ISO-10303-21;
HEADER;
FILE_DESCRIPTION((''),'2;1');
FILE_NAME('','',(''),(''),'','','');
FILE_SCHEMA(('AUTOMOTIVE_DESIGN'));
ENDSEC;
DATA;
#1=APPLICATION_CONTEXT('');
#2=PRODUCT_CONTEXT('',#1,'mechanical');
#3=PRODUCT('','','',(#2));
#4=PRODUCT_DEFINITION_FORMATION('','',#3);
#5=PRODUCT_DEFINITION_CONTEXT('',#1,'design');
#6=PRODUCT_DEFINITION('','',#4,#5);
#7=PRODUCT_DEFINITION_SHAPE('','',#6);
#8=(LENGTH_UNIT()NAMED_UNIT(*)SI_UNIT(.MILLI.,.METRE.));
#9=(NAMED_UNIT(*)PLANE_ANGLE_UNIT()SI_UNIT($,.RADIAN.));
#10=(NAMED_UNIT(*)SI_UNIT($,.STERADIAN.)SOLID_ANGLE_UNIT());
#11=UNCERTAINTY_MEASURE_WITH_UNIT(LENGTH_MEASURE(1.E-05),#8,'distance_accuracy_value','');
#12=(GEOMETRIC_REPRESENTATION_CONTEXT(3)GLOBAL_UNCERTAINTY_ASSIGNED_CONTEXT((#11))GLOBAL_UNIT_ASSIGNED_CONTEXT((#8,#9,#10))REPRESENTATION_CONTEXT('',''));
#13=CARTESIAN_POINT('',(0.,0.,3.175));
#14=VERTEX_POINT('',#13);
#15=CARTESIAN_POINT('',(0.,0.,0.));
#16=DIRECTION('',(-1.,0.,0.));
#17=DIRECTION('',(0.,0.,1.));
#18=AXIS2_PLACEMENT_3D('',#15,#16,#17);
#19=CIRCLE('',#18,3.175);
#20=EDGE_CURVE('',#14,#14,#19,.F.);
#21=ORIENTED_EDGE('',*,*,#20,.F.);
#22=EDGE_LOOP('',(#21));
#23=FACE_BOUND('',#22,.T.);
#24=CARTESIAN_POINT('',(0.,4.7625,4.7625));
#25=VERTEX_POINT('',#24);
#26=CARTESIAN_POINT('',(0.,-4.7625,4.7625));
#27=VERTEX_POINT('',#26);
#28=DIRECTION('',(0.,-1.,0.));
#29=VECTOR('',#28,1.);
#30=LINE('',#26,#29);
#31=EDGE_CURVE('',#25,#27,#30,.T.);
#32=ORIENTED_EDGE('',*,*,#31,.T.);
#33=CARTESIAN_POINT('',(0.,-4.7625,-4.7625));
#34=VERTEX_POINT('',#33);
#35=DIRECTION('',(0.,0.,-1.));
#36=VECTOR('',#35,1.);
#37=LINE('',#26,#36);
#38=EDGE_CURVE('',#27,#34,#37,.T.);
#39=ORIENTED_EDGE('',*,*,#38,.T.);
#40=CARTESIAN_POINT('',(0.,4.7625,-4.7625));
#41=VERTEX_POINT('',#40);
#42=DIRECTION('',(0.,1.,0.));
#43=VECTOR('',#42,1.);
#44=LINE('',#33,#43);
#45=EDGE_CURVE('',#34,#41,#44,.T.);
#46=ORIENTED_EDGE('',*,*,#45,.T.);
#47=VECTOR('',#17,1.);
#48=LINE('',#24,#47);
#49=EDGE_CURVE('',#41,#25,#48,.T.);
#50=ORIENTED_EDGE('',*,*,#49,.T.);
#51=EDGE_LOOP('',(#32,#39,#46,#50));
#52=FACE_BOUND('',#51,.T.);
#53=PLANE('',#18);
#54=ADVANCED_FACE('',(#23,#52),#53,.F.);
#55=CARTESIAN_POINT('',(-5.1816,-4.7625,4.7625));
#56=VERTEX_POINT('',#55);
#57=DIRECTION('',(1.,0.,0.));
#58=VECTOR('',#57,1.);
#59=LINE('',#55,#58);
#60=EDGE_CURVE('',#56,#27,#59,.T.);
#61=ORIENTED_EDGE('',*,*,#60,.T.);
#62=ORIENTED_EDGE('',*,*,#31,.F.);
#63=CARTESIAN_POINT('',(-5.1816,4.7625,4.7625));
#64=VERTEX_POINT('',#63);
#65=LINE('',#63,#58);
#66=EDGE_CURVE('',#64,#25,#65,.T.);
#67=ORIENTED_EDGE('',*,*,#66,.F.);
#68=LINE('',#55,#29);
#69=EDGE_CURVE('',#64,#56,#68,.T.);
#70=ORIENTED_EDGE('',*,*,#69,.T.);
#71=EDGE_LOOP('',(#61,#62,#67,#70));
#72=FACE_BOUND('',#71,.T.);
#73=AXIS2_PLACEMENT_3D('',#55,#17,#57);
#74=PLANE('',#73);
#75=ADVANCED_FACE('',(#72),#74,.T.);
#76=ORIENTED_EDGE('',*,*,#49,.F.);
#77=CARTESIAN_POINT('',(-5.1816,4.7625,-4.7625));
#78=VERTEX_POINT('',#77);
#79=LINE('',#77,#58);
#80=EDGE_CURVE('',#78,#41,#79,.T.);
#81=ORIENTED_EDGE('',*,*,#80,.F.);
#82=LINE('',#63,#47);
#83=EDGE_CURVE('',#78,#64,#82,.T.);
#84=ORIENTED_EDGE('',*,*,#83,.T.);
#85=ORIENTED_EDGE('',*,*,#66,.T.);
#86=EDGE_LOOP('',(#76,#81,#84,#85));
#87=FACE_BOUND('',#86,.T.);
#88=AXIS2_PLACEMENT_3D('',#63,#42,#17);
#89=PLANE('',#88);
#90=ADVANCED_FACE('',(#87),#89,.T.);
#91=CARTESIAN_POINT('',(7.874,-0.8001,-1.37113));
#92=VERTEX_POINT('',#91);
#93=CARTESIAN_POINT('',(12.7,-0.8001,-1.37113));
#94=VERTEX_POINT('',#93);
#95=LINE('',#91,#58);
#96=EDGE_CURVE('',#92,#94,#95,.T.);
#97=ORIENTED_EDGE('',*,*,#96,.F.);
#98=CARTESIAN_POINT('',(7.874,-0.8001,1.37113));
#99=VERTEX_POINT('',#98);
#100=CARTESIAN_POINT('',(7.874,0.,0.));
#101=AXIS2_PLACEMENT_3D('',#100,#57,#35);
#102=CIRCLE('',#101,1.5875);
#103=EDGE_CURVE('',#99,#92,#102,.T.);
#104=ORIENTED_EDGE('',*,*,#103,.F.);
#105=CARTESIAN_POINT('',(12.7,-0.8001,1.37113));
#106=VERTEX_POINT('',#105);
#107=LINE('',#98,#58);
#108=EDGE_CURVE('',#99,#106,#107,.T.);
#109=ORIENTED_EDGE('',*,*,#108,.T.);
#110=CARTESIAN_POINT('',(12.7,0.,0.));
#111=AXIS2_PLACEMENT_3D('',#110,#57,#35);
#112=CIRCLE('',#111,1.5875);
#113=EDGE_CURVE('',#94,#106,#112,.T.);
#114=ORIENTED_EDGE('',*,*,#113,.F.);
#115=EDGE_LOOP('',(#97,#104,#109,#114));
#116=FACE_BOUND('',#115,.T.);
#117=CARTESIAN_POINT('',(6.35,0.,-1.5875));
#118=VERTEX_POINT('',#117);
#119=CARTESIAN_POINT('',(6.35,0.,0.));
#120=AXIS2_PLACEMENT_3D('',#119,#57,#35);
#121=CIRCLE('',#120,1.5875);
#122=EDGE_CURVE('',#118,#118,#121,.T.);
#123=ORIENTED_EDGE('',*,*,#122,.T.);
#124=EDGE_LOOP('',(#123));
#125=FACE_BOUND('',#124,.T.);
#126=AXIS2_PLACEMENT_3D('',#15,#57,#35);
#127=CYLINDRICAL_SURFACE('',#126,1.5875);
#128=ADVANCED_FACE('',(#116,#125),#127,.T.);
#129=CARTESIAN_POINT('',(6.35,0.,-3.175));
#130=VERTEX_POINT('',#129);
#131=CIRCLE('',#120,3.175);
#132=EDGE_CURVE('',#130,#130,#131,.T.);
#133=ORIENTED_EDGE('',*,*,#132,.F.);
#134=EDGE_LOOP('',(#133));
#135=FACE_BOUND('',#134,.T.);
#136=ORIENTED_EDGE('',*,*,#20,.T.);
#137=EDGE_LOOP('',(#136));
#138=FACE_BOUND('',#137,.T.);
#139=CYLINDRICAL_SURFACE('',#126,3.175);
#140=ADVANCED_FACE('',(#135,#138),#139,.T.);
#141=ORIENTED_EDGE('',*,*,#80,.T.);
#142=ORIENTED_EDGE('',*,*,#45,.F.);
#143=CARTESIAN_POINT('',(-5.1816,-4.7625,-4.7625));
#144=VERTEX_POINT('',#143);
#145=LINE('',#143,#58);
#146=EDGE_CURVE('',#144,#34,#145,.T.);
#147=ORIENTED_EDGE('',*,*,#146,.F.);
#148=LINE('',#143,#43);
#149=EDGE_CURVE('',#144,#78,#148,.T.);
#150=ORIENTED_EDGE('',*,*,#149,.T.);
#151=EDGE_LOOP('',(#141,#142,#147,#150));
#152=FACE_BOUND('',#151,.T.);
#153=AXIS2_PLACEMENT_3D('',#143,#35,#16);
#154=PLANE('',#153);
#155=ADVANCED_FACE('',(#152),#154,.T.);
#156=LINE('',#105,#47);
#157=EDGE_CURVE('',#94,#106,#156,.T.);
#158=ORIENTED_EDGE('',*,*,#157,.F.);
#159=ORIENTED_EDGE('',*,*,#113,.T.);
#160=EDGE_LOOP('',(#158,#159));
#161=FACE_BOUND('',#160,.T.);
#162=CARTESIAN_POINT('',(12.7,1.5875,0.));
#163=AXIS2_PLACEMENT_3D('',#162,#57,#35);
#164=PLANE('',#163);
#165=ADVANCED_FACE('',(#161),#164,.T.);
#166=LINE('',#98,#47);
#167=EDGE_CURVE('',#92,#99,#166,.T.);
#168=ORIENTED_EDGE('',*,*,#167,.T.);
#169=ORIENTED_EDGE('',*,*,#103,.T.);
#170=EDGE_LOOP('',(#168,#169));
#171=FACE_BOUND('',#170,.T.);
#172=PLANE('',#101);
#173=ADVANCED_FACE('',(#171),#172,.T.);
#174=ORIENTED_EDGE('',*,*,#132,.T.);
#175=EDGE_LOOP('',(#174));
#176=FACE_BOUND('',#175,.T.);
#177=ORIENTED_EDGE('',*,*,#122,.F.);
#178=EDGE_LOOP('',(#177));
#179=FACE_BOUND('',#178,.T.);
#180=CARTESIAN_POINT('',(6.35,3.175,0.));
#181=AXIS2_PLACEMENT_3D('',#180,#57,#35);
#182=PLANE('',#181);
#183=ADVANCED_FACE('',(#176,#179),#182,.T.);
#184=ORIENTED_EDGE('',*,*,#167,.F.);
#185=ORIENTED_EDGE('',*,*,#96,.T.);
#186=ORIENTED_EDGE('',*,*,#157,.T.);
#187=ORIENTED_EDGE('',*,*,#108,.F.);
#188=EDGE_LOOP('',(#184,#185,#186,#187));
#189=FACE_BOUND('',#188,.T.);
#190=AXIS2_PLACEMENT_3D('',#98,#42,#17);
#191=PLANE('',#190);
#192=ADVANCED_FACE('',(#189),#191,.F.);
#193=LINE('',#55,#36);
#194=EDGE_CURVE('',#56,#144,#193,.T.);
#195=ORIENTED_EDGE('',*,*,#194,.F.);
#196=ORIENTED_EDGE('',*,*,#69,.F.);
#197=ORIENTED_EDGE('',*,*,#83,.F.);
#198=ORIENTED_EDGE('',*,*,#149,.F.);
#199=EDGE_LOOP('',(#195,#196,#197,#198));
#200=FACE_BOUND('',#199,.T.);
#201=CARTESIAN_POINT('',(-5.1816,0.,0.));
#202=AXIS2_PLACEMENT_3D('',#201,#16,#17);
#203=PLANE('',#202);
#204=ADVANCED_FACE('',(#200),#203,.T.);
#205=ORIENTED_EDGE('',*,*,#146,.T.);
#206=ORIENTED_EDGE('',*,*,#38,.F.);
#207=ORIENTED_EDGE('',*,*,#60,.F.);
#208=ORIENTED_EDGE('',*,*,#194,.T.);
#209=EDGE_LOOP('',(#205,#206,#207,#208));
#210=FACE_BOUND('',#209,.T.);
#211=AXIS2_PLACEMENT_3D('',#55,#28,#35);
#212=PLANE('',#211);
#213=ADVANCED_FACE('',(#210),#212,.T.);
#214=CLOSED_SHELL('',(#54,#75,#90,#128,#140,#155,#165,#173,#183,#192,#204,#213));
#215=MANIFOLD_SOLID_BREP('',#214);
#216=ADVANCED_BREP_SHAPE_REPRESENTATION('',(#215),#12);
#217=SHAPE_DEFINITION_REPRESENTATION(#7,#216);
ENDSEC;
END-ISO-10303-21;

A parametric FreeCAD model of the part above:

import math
import FreeCAD as App
import Part
import Sketcher
from FreeCAD import Vector
Q = App.Units.Quantity

doc = App.newDocument("Part")
body = doc.addObject("PartDesign::Body", "Body")

# Sketch on XY plane
sketch1 = doc.addObject("Sketcher::SketchObject", "Sketch")
body.addObject(sketch1)
sketch1.AttachmentSupport = (doc.XY_Plane, [""])
sketch1.MapMode = "FlatFace"
sketch1.addGeometry([
    Part.LineSegment(Vector(6.3, 3.2, 0), Vector(0, 3.2, 0)),  # 0
    Part.LineSegment(Vector(0, 3.2, 0), Vector(0, 0, 0)),  # 1
    Part.LineSegment(Vector(0, 0, 0), Vector(12.7, 0, 0)),  # 2
    Part.LineSegment(Vector(12.7, 0, 0), Vector(12.7, 1.6, 0)),  # 3
    Part.LineSegment(Vector(12.7, 1.6, 0), Vector(6.3, 1.6, 0)),  # 4
    Part.LineSegment(Vector(6.3, 1.6, 0), Vector(6.3, 3.2, 0)),  # 5
], False)
sketch1.addConstraint([
    Sketcher.Constraint("Coincident", 0, 2, 1, 1),
    Sketcher.Constraint("Coincident", 1, 2, 2, 1),
    Sketcher.Constraint("Coincident", 2, 2, 3, 1),
    Sketcher.Constraint("Coincident", 3, 2, 4, 1),
    Sketcher.Constraint("Coincident", 4, 2, 5, 1),
    Sketcher.Constraint("Coincident", 5, 2, 0, 1),
    Sketcher.Constraint("Horizontal", 0),
    Sketcher.Constraint("Vertical", 1),
    Sketcher.Constraint("Horizontal", 2),
    Sketcher.Constraint("Vertical", 3),
    Sketcher.Constraint("Horizontal", 4),
    Sketcher.Constraint("Vertical", 5),
    Sketcher.Constraint("Coincident", 1, 2, -1, 1),
    Sketcher.Constraint("Equal", 0, 4),
    Sketcher.Constraint("Equal", 3, 5),
    Sketcher.Constraint("DistanceX", 2, 1, 2, 2, Q("0.5 in")),
    Sketcher.Constraint("DistanceY", 1, 2, 1, 1, Q("0.125 in")),
])
revolution = doc.addObject("PartDesign::Revolution", "Revolution")
body.addObject(revolution)
revolution.Profile = sketch1
revolution.ReferenceAxis = (sketch1, ["H_Axis"])
revolution.Angle = 360

# Sketch on YZ plane
sketch2 = doc.addObject("Sketcher::SketchObject", "Sketch001")
body.addObject(sketch2)
sketch2.AttachmentSupport = (doc.YZ_Plane, [""])
sketch2.MapMode = "FlatFace"
sketch2.addGeometry([
    Part.LineSegment(Vector(5, 5, 0), Vector(-5, 5, 0)),
    Part.LineSegment(Vector(-5, 5, 0), Vector(-5, -5, 0)),
    Part.LineSegment(Vector(-5, -5, 0), Vector(5, -5, 0)),
    Part.LineSegment(Vector(5, -5, 0), Vector(5, 5, 0)),
], False)
sketch2.addConstraint([
    Sketcher.Constraint("Coincident", 0, 2, 1, 1),
    Sketcher.Constraint("Coincident", 1, 2, 2, 1),
    Sketcher.Constraint("Coincident", 2, 2, 3, 1),
    Sketcher.Constraint("Coincident", 3, 2, 0, 1),
    Sketcher.Constraint("Horizontal", 0),
    Sketcher.Constraint("Vertical", 1),
    Sketcher.Constraint("Horizontal", 2),
    Sketcher.Constraint("Vertical", 3),
    Sketcher.Constraint("Symmetric", 0, 2, 2, 2, -1, 1),
    Sketcher.Constraint("Equal", 2, 1),
    Sketcher.Constraint("DistanceX", 0, 2, 0, 1, Q("0.375 in")),
])
pad1 = doc.addObject("PartDesign::Pad", "Pad")
body.addObject(pad1)
pad1.Profile = sketch2
pad1.Length = Q("0.204 in")
pad1.Reversed = True

# Sketch on YZ plane
sketch3 = doc.addObject("Sketcher::SketchObject", "Sketch002")
body.addObject(sketch3)
sketch3.AttachmentSupport = (doc.YZ_Plane, [""])
sketch3.MapMode = "FlatFace"
sketch3.AttachmentOffset = App.Placement(Vector(0, 0, 0.5 * 25.4), App.Rotation())
sketch3.addGeometry([
    Part.LineSegment(Vector(-0.8, -1.4, 0), Vector(-0.8, 1.4, 0)),
    Part.ArcOfCircle(Part.Circle(Vector(0, 0, 0), Vector(0, 0, 1), 1.6), math.radians(120), math.radians(240)),
], False)
sketch3.addConstraint([
    Sketcher.Constraint("Coincident", 0, 1, 1, 2),
    Sketcher.Constraint("Coincident", 1, 1, 0, 2),
    Sketcher.Constraint("Vertical", 0),
    Sketcher.Constraint("Coincident", 1, 3, -1, 1),
    Sketcher.Constraint("Radius", 1, Q("0.0625 in")),
    Sketcher.Constraint("DistanceX", 0, 1, -1, 1, Q("0.0315 in")),
])
pocket1 = doc.addObject("PartDesign::Pocket", "Pocket")
body.addObject(pocket1)
pocket1.Profile = sketch3
pocket1.Length = Q("0.19 in")

doc.recompute()
